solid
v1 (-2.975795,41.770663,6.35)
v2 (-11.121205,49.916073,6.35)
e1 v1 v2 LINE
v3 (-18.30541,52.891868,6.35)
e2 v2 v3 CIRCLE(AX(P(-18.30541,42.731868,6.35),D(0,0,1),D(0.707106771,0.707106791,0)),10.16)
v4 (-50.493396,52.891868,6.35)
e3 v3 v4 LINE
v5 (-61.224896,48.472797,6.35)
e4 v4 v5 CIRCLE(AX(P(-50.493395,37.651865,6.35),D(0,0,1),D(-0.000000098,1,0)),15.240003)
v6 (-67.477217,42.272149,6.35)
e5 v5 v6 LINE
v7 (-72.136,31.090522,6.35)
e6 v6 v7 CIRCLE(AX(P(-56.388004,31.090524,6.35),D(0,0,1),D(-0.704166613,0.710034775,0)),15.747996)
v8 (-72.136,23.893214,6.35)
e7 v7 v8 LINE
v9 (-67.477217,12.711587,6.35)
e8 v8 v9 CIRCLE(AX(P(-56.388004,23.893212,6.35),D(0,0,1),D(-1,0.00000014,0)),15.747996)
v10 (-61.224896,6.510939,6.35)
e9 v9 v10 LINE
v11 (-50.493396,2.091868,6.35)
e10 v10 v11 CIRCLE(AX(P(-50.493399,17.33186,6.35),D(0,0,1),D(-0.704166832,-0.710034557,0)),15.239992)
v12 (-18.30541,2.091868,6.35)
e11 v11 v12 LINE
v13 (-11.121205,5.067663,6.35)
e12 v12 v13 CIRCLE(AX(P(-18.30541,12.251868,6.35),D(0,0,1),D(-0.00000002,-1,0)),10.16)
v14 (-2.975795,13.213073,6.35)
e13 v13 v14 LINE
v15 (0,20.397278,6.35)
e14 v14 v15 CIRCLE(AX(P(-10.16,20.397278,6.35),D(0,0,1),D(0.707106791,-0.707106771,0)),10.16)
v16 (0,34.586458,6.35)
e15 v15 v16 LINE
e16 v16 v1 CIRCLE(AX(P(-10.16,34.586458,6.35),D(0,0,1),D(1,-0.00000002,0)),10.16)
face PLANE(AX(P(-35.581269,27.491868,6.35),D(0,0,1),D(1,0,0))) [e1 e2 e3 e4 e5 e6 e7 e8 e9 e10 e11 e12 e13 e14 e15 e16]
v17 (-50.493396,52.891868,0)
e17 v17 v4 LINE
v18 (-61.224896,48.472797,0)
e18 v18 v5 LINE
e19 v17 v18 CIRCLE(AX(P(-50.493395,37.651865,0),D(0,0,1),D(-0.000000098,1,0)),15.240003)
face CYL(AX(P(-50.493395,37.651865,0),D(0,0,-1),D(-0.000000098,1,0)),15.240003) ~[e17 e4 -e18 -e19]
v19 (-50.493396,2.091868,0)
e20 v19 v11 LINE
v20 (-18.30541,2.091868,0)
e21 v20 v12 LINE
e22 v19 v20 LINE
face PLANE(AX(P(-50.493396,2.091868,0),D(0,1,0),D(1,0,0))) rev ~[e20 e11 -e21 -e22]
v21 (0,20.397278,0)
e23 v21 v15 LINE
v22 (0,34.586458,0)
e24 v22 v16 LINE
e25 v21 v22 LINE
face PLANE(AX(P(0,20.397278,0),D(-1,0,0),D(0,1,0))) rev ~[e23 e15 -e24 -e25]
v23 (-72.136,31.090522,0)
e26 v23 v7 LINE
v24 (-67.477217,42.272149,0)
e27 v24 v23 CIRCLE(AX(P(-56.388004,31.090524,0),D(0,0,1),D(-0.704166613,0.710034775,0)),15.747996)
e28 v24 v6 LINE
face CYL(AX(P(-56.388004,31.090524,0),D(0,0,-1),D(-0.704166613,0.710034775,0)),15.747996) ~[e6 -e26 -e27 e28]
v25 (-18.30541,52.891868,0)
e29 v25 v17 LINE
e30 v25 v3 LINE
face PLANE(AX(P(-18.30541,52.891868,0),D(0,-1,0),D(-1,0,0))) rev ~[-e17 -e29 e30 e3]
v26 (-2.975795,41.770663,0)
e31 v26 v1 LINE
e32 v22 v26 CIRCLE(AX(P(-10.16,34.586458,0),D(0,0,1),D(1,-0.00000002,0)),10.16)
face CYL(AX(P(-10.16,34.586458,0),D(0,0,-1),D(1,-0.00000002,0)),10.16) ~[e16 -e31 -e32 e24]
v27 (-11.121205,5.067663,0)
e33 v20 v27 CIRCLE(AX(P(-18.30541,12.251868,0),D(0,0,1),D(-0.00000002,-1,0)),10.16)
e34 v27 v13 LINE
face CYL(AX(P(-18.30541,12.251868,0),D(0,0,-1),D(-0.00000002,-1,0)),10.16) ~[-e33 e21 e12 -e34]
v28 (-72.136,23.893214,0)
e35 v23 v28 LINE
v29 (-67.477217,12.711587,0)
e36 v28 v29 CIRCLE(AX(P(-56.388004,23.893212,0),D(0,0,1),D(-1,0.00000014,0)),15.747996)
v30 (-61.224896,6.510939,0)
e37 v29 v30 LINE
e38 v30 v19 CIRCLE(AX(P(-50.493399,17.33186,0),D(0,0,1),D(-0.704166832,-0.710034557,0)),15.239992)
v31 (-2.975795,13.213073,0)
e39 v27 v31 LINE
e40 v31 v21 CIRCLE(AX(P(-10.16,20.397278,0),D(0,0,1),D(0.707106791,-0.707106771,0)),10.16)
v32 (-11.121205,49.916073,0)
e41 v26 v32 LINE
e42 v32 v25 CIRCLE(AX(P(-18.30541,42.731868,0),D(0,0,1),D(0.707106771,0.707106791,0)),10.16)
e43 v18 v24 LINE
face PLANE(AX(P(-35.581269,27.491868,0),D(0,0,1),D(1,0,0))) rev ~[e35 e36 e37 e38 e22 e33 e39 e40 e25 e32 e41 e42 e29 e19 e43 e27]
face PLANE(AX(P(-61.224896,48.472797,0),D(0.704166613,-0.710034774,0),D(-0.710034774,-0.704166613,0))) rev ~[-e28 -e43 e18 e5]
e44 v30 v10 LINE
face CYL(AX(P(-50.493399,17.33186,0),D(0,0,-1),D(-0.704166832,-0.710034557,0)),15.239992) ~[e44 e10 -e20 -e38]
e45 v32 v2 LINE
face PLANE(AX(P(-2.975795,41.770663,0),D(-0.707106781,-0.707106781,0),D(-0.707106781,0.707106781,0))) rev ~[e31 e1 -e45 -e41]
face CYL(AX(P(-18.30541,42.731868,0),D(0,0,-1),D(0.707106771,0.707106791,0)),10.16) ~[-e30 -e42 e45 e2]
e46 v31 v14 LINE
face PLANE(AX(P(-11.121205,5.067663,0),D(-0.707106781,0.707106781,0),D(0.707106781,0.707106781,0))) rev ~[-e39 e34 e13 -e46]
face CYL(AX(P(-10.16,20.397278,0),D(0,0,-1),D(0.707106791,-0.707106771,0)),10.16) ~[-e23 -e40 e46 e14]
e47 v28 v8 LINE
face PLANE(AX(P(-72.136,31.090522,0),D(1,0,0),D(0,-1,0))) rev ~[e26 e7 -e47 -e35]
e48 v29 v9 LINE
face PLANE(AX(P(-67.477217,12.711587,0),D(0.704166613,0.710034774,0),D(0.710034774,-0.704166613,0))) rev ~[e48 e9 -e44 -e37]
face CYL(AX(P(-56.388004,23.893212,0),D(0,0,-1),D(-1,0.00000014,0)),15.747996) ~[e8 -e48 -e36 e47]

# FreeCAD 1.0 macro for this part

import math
import FreeCAD as App
import Part
import Sketcher

V = App.Vector
Q = App.Units.Quantity

doc = App.newDocument("Part")
body = doc.addObject("PartDesign::Body", "Body")

# Sketch on XY plane
sketch1 = body.newObject("Sketcher::SketchObject", "Sketch")
sketch1.AttachmentSupport = (doc.getObject("XY_Plane"), [""])
sketch1.MapMode = "FlatFace"
sketch1.addGeometry([
    Part.ArcOfCircle(Part.Circle(V(-10.16, 20.397278, 0), V(0, 0, 1), 10.16), math.radians(-44.999999), math.radians(0.000001)),  # 0
    Part.LineSegment(V(0, 20.397278, 0), V(0, 34.586458, 0)),  # 1
    Part.ArcOfCircle(Part.Circle(V(-10.16, 34.586458, 0), V(0, 0, 1), 10.16), math.radians(-0.000001), math.radians(44.999999)),  # 2
    Part.LineSegment(V(-2.975795, 41.770663, 0), V(-11.121205, 49.916073, 0)),  # 3
    Part.ArcOfCircle(Part.Circle(V(-18.30541, 42.731868, 0), V(0, 0, 1), 10.16), math.radians(45.000001), math.radians(90.000001)),  # 4
    Part.LineSegment(V(-18.30541, 52.891868, 0), V(-50.493396, 52.891868, 0)),  # 5
    Part.ArcOfCircle(Part.Circle(V(-50.493395, 37.651865, 0), V(0, 0, 1), 15.240003), math.radians(90.000006), math.radians(134.762255)),  # 6
    Part.LineSegment(V(-61.224896, 48.472797, 0), V(-67.477217, 42.272149, 0)),  # 7
    Part.ArcOfCircle(Part.Circle(V(-56.388004, 31.090524, 0), V(0, 0, 1), 15.747996), math.radians(134.762255), math.radians(180.000008)),  # 8
    Part.LineSegment(V(-72.136, 31.090522, 0), V(-72.136, 23.893214, 0)),  # 9
    Part.ArcOfCircle(Part.Circle(V(-56.388004, 23.893212, 0), V(0, 0, 1), 15.747996), math.radians(179.999992), math.radians(225.237745)),  # 10
    Part.LineSegment(V(-67.477217, 12.711587, 0), V(-61.224896, 6.510939, 0)),  # 11
    Part.ArcOfCircle(Part.Circle(V(-50.493399, 17.33186, 0), V(0, 0, 1), 15.239992), math.radians(-134.762273), math.radians(-89.999988)),  # 12
    Part.LineSegment(V(-50.493396, 2.091868, 0), V(-18.30541, 2.091868, 0)),  # 13
    Part.ArcOfCircle(Part.Circle(V(-18.30541, 12.251868, 0), V(0, 0, 1), 10.16), math.radians(-90.000001), math.radians(-45.000001)),  # 14
    Part.LineSegment(V(-11.121205, 5.067663, 0), V(-2.975795, 13.213073, 0)),  # 15
], False)
sketch1.addConstraint([
    Sketcher.Constraint("Tangent", 0, 2, 1, 1),
    Sketcher.Constraint("Tangent", 1, 2, 2, 1),
    Sketcher.Constraint("Tangent", 2, 2, 3, 1),
    Sketcher.Constraint("Tangent", 3, 2, 4, 1),
    Sketcher.Constraint("Tangent", 4, 2, 5, 1),
    Sketcher.Constraint("Tangent", 5, 2, 6, 1),
    Sketcher.Constraint("Tangent", 6, 2, 7, 1),
    Sketcher.Constraint("Tangent", 7, 2, 8, 1),
    Sketcher.Constraint("Tangent", 8, 2, 9, 1),
    Sketcher.Constraint("Tangent", 9, 2, 10, 1),
    Sketcher.Constraint("Tangent", 10, 2, 11, 1),
    Sketcher.Constraint("Tangent", 11, 2, 12, 1),
    Sketcher.Constraint("Tangent", 12, 2, 13, 1),
    Sketcher.Constraint("Tangent", 13, 2, 14, 1),
    Sketcher.Constraint("Tangent", 14, 2, 15, 1),
    Sketcher.Constraint("Tangent", 15, 2, 0, 1),
    Sketcher.Constraint("Vertical", 1),
    Sketcher.Constraint("Horizontal", 5),
    Sketcher.Constraint("Vertical", 9),
    Sketcher.Constraint("Horizontal", 13),
    Sketcher.Constraint("Equal", 0, 2),
    Sketcher.Constraint("Equal", 2, 4),
    Sketcher.Constraint("Equal", 8, 10),
    Sketcher.Constraint("Equal", 4, 14),
    Sketcher.Constraint("PointOnObject", 0, 2, -2),
    Sketcher.Constraint("Perpendicular", 3, 15),
    Sketcher.Constraint("Vertical", 4, 3, 14, 3),
    Sketcher.Constraint("Vertical", 7, 2, 10, 2),
    Sketcher.Constraint("Vertical", 6, 2, 11, 2),
    Sketcher.Constraint("Vertical", 5, 2, 12, 2),
    Sketcher.Constraint("Vertical", 3, 2, 14, 2),
    Sketcher.Constraint("Radius", 0, Q("0.4 in")),
    Sketcher.Constraint("Radius", 6, Q("0.6000001 in")),
    Sketcher.Constraint("Radius", 8, Q("0.6199998 in")),
    Sketcher.Constraint("DistanceY", 12, 3, 6, 3, Q("0.8000002 in")),
    Sketcher.Constraint("DistanceX", 8, 3, -1, 1, Q("2.2200002 in")),
    Sketcher.Constraint("DistanceX", 6, 2, 5, 2, Q("0.4225 in")),
    Sketcher.Constraint("DistanceY", 1, 1, 1, 2, 14.18918),
    Sketcher.Constraint("DistanceX", 12, 3, -1, 1, 50.493399),
    Sketcher.Constraint("DistanceY", -1, 1, 2, 3, 34.586458),
])
pad1 = body.newObject("PartDesign::Pad", "Pad")
pad1.Profile = sketch1
pad1.Length = Q("0.25 in")

doc.recompute()
